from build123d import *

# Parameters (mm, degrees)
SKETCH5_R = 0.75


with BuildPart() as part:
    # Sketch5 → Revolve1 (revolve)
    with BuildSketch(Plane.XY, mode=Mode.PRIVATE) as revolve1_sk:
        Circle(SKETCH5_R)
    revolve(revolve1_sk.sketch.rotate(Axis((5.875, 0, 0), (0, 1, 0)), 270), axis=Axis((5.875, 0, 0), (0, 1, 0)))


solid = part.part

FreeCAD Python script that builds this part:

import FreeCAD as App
import Part
import Sketcher
from FreeCAD import Vector
Q = App.Units.Quantity

doc = App.newDocument("Part")
body = doc.addObject("PartDesign::Body", "Body")

# Sketch on XY plane
sketch1 = doc.addObject("Sketcher::SketchObject", "Sketch")
body.addObject(sketch1)
sketch1.AttachmentSupport = (doc.XY_Plane, [""])
sketch1.MapMode = "FlatFace"
sketch1.addGeometry(Part.Circle(Vector(0, 0, 0), Vector(0, 0, 1), 0.75), False)
sketch1.addGeometry(Part.LineSegment(Vector(5.875, 0, 0), Vector(5.875, 10, 0)), True)  # axis
sketch1.addConstraint([
    Sketcher.Constraint("Vertical", 1),
    Sketcher.Constraint("Coincident", 0, 3, -1, 1),
    Sketcher.Constraint("PointOnObject", 1, 1, -1),
    Sketcher.Constraint("Diameter", 0, Q("1.5 mm")),
    Sketcher.Constraint("DistanceY", 1, 1, 1, 2, Q("10 mm")),
    Sketcher.Constraint("DistanceX", -1, 1, 1, 1, Q("5.875 mm")),
])
revolution = doc.addObject("PartDesign::Revolution", "Revolution")
body.addObject(revolution)
revolution.Profile = sketch1
revolution.ReferenceAxis = (sketch1, ["Axis0"])
revolution.Angle = 360

doc.recompute()
